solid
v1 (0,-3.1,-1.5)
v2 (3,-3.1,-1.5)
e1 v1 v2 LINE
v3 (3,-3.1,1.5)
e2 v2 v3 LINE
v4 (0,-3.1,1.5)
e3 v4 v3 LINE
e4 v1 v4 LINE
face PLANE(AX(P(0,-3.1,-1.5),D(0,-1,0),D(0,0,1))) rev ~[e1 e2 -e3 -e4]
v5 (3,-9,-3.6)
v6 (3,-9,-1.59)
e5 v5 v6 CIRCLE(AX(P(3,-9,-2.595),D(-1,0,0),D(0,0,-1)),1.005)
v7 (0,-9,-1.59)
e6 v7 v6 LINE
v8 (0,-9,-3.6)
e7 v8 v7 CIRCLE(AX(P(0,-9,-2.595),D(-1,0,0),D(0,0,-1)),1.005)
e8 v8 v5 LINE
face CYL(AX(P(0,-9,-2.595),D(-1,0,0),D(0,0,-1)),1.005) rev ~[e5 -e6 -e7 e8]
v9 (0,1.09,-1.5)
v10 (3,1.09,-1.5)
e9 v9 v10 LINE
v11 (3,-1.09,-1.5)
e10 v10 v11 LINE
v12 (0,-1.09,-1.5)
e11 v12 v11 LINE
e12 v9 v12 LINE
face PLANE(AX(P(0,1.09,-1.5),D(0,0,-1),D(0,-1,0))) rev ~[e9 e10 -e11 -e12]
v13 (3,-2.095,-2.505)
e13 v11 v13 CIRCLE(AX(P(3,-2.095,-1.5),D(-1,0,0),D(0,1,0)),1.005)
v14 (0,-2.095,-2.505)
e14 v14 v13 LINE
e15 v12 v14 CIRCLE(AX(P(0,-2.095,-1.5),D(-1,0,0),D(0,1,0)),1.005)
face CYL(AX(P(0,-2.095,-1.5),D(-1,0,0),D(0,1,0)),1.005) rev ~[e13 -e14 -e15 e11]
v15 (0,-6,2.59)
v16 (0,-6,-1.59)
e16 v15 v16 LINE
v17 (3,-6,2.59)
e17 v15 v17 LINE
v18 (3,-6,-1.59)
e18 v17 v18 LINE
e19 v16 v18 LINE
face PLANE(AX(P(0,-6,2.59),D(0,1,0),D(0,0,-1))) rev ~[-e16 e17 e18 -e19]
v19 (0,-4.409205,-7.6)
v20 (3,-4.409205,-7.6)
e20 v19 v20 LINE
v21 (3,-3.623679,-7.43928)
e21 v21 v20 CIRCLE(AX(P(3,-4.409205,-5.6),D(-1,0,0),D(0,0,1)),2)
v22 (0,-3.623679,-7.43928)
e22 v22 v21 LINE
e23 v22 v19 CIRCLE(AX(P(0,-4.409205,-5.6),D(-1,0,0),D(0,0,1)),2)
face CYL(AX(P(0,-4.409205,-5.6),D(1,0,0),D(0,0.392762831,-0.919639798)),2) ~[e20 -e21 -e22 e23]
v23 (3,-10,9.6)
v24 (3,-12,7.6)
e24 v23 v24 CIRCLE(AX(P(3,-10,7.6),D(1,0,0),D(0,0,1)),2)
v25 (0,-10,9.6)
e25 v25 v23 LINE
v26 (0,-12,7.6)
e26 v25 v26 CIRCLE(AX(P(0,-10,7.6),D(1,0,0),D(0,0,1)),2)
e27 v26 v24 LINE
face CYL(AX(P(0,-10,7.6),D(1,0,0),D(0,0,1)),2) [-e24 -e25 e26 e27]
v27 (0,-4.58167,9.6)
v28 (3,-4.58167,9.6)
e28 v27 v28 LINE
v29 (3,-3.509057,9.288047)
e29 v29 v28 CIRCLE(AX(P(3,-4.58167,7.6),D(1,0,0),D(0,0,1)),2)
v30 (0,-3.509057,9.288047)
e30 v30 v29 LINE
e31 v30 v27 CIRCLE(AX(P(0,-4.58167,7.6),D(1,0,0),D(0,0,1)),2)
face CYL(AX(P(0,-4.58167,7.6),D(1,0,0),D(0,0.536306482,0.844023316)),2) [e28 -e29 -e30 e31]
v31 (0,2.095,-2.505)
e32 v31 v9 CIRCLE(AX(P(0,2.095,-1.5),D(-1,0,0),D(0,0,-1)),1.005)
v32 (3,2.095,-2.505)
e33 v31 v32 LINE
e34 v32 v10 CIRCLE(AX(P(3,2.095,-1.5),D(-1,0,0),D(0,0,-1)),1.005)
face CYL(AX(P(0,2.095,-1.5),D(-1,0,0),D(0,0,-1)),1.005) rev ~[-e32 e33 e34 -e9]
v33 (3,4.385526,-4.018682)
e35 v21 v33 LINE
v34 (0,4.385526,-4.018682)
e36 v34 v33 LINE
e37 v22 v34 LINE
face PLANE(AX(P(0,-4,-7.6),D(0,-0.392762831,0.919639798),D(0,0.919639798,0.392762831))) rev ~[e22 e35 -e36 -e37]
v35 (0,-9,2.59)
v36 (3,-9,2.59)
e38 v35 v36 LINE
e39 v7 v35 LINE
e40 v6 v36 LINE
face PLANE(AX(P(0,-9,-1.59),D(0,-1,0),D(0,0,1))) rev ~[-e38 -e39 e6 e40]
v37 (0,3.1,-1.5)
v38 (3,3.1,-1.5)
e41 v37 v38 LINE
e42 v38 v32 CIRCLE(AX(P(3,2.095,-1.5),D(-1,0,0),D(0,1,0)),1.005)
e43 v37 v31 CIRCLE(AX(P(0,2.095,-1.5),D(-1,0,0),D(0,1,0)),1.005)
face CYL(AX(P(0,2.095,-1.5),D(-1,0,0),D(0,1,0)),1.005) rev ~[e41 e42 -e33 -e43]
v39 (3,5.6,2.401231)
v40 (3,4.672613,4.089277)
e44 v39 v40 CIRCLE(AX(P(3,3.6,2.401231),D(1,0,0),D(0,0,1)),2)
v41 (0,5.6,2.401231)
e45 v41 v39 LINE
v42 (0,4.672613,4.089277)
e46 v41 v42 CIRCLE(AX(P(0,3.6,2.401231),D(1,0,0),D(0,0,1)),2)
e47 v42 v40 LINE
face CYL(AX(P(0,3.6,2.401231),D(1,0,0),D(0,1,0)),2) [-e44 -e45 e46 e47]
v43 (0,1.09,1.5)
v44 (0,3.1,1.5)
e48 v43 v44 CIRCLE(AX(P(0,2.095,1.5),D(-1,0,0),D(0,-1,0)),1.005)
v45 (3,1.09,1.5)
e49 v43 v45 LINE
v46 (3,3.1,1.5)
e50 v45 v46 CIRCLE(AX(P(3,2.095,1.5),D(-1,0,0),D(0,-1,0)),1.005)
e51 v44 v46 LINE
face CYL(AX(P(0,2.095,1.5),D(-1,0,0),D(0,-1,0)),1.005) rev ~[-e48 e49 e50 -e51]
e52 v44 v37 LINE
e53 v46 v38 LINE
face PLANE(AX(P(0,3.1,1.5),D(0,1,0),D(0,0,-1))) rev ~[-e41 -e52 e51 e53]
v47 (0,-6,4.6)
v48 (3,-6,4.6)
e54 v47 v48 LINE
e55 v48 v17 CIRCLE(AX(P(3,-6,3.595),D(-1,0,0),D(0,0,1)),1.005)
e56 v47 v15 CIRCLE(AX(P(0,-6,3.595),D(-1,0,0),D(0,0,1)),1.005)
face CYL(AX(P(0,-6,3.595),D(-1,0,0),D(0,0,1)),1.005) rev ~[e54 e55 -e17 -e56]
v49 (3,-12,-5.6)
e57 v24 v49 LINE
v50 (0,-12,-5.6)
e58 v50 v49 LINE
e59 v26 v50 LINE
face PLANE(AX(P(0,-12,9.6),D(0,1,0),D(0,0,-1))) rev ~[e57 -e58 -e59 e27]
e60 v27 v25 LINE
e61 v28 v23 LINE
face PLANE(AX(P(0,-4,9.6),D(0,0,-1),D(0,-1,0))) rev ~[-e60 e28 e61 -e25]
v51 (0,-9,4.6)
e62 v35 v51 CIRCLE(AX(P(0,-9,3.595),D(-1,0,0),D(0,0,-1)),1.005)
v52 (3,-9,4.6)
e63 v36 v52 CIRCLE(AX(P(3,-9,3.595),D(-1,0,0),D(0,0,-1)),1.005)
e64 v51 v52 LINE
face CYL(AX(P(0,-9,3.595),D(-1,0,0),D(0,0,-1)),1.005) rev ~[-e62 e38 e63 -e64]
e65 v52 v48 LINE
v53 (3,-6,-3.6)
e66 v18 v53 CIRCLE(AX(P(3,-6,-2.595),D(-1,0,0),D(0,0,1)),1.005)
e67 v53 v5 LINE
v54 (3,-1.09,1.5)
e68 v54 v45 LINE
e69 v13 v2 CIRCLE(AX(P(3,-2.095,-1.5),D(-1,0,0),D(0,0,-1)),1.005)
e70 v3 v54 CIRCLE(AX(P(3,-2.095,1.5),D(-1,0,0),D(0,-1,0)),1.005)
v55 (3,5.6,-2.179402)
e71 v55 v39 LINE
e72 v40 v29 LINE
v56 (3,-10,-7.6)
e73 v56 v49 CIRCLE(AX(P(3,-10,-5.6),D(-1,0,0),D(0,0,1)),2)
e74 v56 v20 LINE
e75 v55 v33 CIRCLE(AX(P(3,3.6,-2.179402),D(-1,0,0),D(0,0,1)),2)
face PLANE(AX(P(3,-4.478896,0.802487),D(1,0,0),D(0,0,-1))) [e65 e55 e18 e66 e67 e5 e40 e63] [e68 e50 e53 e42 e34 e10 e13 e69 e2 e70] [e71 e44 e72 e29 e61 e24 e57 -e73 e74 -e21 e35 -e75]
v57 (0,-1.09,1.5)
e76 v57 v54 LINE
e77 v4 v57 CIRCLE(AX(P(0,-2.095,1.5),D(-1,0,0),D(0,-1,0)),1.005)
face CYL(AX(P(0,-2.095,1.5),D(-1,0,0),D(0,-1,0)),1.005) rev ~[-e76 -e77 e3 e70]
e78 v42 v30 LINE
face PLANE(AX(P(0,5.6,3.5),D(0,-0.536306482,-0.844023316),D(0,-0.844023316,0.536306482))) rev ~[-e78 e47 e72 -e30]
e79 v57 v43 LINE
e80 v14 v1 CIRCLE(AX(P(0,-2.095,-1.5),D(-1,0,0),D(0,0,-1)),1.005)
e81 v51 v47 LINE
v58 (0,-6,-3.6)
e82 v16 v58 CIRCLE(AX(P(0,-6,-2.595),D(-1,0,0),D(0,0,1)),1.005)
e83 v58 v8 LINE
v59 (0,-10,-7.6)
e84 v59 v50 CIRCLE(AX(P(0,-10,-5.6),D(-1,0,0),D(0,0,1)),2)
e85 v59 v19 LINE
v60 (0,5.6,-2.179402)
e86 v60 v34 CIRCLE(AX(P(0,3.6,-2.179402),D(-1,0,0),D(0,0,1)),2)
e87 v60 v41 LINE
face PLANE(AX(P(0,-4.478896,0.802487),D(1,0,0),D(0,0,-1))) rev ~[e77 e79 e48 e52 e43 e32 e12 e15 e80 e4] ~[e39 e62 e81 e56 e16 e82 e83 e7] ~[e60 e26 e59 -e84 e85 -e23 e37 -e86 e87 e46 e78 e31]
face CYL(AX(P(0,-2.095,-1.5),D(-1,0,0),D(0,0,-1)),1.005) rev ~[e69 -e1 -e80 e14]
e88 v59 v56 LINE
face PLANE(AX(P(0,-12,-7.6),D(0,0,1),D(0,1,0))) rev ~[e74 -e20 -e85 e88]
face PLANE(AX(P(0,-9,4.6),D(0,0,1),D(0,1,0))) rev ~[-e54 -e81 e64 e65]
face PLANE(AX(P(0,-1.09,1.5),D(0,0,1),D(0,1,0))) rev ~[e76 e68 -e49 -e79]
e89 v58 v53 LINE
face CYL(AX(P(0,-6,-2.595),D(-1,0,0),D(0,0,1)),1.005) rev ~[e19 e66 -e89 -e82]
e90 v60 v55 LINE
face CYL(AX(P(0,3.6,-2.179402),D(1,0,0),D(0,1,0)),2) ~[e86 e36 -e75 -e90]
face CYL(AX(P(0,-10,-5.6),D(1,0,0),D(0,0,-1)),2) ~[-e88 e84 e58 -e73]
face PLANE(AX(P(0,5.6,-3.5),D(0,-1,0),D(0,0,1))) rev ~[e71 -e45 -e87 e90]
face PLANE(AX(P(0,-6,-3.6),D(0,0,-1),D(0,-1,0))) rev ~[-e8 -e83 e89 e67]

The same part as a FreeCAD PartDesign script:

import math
import FreeCAD as App
import Part
import Sketcher
from FreeCAD import Vector
Q = App.Units.Quantity


def edges_at(feature, points):
    """Names of the edges that pass closest to the given points."""
    edges = feature.Shape.Edges
    near = lambda p: min(range(len(edges)), key=lambda i: edges[i].distToShape(Part.Vertex(*p))[0])
    return sorted({f"Edge{near(p) + 1}" for p in points})


def add_polygon(sketch, points):
    """Adds a closed chain of lines whose ends are joined by coincident constraints."""
    first, n = sketch.GeometryCount, len(points)
    for a, b in zip(points, points[1:] + points[:1]):
        sketch.addGeometry(Part.LineSegment(App.Vector(*a, 0), App.Vector(*b, 0)), False)
    for i in range(n):
        sketch.addConstraint(Sketcher.Constraint("Coincident", first + i, 2, first + (i + 1) % n, 1))

doc = App.newDocument("Part")
params = doc.addObject("Spreadsheet::Sheet", "Params")
for row, (alias, value) in enumerate([
    ("sketch1_width", "8 mm"),
    ("sketch1_width2", "3 mm"),
    ("sketch1_height", "7 mm"),
    ("sketch1_height2", "17.2 mm"),
    ("sketch1_width3", "2.18 mm"),
    ("pad1_length", "3 mm"),
    ("fillet_radius", "2 mm"),
], start=1):
    params.set(f"A{row}", alias)
    params.set(f"B{row}", "=" + value)
    params.setAlias(f"B{row}", alias)

body = doc.addObject("PartDesign::Body", "Body")

sketch1 = body.newObject("Sketcher::SketchObject", "Sketch")
sketch1.AttachmentSupport = (doc.getObject("YZ_Plane"), [""])
sketch1.MapMode = "FlatFace"
add_polygon(sketch1, [(5.6, -3.5), (5.6, 3.5), (-4, 9.6), (-12, 9.6), (-12, -7.6), (-4, -7.6)])
sketch1.addGeometry(Part.LineSegment(Vector(-9, -1.6, 0), Vector(-9, 2.6, 0)), False)
sketch1.addGeometry(Part.ArcOfCircle(Part.Circle(Vector(-9, 3.6, 0), Vector(0, 0, 1), 1), math.radians(90), math.radians(270)), False)
sketch1.addGeometry(Part.LineSegment(Vector(-9, 4.6, 0), Vector(-6, 4.6, 0)), False)
sketch1.addGeometry(Part.ArcOfCircle(Part.Circle(Vector(-6, 3.6, 0), Vector(0, 0, 1), 1), math.radians(-90), math.radians(90)), False)
sketch1.addGeometry(Part.LineSegment(Vector(-6, 2.6, 0), Vector(-6, -1.6, 0)), False)
sketch1.addGeometry(Part.ArcOfCircle(Part.Circle(Vector(-6, -2.6, 0), Vector(0, 0, 1), 1), math.radians(-90), math.radians(90)), False)
sketch1.addGeometry(Part.LineSegment(Vector(-6, -3.6, 0), Vector(-9, -3.6, 0)), False)
sketch1.addGeometry(Part.ArcOfCircle(Part.Circle(Vector(-9, -2.6, 0), Vector(0, 0, 1), 1), math.radians(90), math.radians(270)), False)
sketch1.addGeometry(Part.ArcOfCircle(Part.Circle(Vector(-2.1, -1.5, 0), Vector(0, 0, 1), 1), math.radians(-90), math.radians(0)), False)
sketch1.addGeometry(Part.ArcOfCircle(Part.Circle(Vector(-2.1, -1.5, 0), Vector(0, 0, 1), 1), math.radians(180), math.radians(270)), False)
sketch1.addGeometry(Part.LineSegment(Vector(-3.1, -1.5, 0), Vector(-3.1, 1.5, 0)), False)
sketch1.addGeometry(Part.ArcOfCircle(Part.Circle(Vector(-2.1, 1.5, 0), Vector(0, 0, 1), 1), math.radians(0), math.radians(180)), False)
sketch1.addGeometry(Part.LineSegment(Vector(-1.1, 1.5, 0), Vector(1.1, 1.5, 0)), False)
sketch1.addGeometry(Part.ArcOfCircle(Part.Circle(Vector(2.1, 1.5, 0), Vector(0, 0, 1), 1), math.radians(0), math.radians(180)), False)
sketch1.addGeometry(Part.LineSegment(Vector(3.1, 1.5, 0), Vector(3.1, -1.5, 0)), False)
sketch1.addGeometry(Part.ArcOfCircle(Part.Circle(Vector(2.1, -1.5, 0), Vector(0, 0, 1), 1), math.radians(-90), math.radians(0)), False)
sketch1.addGeometry(Part.ArcOfCircle(Part.Circle(Vector(2.1, -1.5, 0), Vector(0, 0, 1), 1), math.radians(180), math.radians(270)), False)
sketch1.addGeometry(Part.LineSegment(Vector(1.1, -1.5, 0), Vector(-1.1, -1.5, 0)), False)
sketch1.addConstraint([
    Sketcher.Constraint("Coincident", 6, 2, 7, 2),
    Sketcher.Constraint("Tangent", 7, 1, 8, 1),
    Sketcher.Constraint("Tangent", 8, 2, 9, 2),
    Sketcher.Constraint("Coincident", 9, 1, 10, 1),
    Sketcher.Constraint("Coincident", 10, 2, 11, 2),
    Sketcher.Constraint("Tangent", 11, 1, 12, 1),
    Sketcher.Constraint("Tangent", 12, 2, 13, 2),
    Sketcher.Constraint("Coincident", 13, 1, 6, 1),
    Sketcher.Constraint("Tangent", 14, 1, 15, 2),
    Sketcher.Constraint("Tangent", 15, 1, 16, 1),
    Sketcher.Constraint("Tangent", 16, 2, 17, 2),
    Sketcher.Constraint("Coincident", 17, 1, 18, 1),
    Sketcher.Constraint("Coincident", 18, 2, 19, 2),
    Sketcher.Constraint("Tangent", 19, 1, 20, 1),
    Sketcher.Constraint("Tangent", 20, 2, 21, 2),
    Sketcher.Constraint("Tangent", 21, 1, 22, 2),
    Sketcher.Constraint("Coincident", 22, 1, 23, 1),
    Sketcher.Constraint("Coincident", 23, 2, 14, 2),
    Sketcher.Constraint("Vertical", 0),
    Sketcher.Constraint("Horizontal", 2),
    Sketcher.Constraint("Vertical", 3),
    Sketcher.Constraint("Horizontal", 4),
    Sketcher.Constraint("Vertical", 6),
    Sketcher.Constraint("Horizontal", 8),
    Sketcher.Constraint("Vertical", 10),
    Sketcher.Constraint("Horizontal", 12),
    Sketcher.Constraint("Vertical", 16),
    Sketcher.Constraint("Horizontal", 18),
    Sketcher.Constraint("Vertical", 20),
    Sketcher.Constraint("Horizontal", 23),
    Sketcher.Constraint("Equal", 7, 9),
    Sketcher.Constraint("Equal", 9, 11),
    Sketcher.Constraint("Equal", 11, 13),
    Sketcher.Constraint("Equal", 13, 14),
    Sketcher.Constraint("Equal", 14, 15),
    Sketcher.Constraint("Equal", 15, 17),
    Sketcher.Constraint("Equal", 17, 19),
    Sketcher.Constraint("Equal", 19, 21),
    Sketcher.Constraint("Equal", 21, 22),
    Sketcher.Constraint("Symmetric", 14, 3, 19, 3, -1, 1),
    Sketcher.Constraint("Symmetric", 14, 1, 21, 1, -2),
    Sketcher.Constraint("Horizontal", 17, 3, 19, 3),
    Sketcher.Constraint("Horizontal", 16, 2, 17, 1),
    Sketcher.Constraint("Horizontal", 20, 2, 22, 1),
    Sketcher.Constraint("Vertical", 9, 3, 11, 3),
    Sketcher.Constraint("Vertical", 7, 3, 13, 3),
    Sketcher.Constraint("Vertical", 1, 2, 4, 2),
    Sketcher.Constraint("Vertical", 13, 3, 6, 2),
    Sketcher.Constraint("Vertical", 8, 2, 9, 1),
    Sketcher.Constraint("Vertical", 17, 3, 14, 1),
    Sketcher.Constraint("Equal", 12, 16),
    Sketcher.Constraint("DistanceX", 2, 2, 2, 1, Q("8 mm")),
    Sketcher.Constraint("DistanceX", 8, 1, 8, 2, Q("3 mm")),
    Sketcher.Constraint("DistanceY", 0, 1, 0, 2, Q("7 mm")),
    Sketcher.Constraint("DistanceY", 3, 2, 3, 1, Q("17.2 mm")),
    Sketcher.Constraint("DistanceX", 7, 3, -1, 1, Q("9 mm")),
    Sketcher.Constraint("DistanceX", 1, 2, -1, 1, Q("4 mm")),
    Sketcher.Constraint("Radius", 7, Q("1.005 mm")),
    Sketcher.Constraint("DistanceY", 19, 3, 0, 2, Q("2 mm")),
    Sketcher.Constraint("DistanceY", 7, 1, 2, 2, Q("5 mm")),
    Sketcher.Constraint("DistanceY", 3, 2, 12, 2, Q("4 mm")),
    Sketcher.Constraint("DistanceX", 18, 1, 18, 2, Q("2.18 mm")),
    Sketcher.Constraint("DistanceX", -1, 1, 0, 2, Q("5.6 mm")),
    Sketcher.Constraint("DistanceY", -1, 1, 1, 2, Q("9.6 mm")),
])
sketch1.setExpression("Constraints[57]", "Params.sketch1_width")
sketch1.setExpression("Constraints[58]", "Params.sketch1_width2")
sketch1.setExpression("Constraints[59]", "Params.sketch1_height")
sketch1.setExpression("Constraints[60]", "Params.sketch1_height2")
sketch1.setExpression("Constraints[67]", "Params.sketch1_width3")
pad1 = body.newObject("PartDesign::Pad", "Pad")
pad1.Profile = sketch1
pad1.setExpression("Length", "Params.pad1_length")
doc.recompute()

fillet = body.newObject("PartDesign::Fillet", "Fillet")
fillet.Base = (pad1, edges_at(pad1, [
    (1.5, 5.6, 3.5),
    (1.5, 5.6, -3.5),
    (1.5, -4, -7.6),
    (1.5, -12, -7.6),
    (1.5, -12, 9.6),
    (1.5, -4, 9.6),
]))
fillet.setExpression("Radius", "Params.fillet_radius")

doc.recompute()
